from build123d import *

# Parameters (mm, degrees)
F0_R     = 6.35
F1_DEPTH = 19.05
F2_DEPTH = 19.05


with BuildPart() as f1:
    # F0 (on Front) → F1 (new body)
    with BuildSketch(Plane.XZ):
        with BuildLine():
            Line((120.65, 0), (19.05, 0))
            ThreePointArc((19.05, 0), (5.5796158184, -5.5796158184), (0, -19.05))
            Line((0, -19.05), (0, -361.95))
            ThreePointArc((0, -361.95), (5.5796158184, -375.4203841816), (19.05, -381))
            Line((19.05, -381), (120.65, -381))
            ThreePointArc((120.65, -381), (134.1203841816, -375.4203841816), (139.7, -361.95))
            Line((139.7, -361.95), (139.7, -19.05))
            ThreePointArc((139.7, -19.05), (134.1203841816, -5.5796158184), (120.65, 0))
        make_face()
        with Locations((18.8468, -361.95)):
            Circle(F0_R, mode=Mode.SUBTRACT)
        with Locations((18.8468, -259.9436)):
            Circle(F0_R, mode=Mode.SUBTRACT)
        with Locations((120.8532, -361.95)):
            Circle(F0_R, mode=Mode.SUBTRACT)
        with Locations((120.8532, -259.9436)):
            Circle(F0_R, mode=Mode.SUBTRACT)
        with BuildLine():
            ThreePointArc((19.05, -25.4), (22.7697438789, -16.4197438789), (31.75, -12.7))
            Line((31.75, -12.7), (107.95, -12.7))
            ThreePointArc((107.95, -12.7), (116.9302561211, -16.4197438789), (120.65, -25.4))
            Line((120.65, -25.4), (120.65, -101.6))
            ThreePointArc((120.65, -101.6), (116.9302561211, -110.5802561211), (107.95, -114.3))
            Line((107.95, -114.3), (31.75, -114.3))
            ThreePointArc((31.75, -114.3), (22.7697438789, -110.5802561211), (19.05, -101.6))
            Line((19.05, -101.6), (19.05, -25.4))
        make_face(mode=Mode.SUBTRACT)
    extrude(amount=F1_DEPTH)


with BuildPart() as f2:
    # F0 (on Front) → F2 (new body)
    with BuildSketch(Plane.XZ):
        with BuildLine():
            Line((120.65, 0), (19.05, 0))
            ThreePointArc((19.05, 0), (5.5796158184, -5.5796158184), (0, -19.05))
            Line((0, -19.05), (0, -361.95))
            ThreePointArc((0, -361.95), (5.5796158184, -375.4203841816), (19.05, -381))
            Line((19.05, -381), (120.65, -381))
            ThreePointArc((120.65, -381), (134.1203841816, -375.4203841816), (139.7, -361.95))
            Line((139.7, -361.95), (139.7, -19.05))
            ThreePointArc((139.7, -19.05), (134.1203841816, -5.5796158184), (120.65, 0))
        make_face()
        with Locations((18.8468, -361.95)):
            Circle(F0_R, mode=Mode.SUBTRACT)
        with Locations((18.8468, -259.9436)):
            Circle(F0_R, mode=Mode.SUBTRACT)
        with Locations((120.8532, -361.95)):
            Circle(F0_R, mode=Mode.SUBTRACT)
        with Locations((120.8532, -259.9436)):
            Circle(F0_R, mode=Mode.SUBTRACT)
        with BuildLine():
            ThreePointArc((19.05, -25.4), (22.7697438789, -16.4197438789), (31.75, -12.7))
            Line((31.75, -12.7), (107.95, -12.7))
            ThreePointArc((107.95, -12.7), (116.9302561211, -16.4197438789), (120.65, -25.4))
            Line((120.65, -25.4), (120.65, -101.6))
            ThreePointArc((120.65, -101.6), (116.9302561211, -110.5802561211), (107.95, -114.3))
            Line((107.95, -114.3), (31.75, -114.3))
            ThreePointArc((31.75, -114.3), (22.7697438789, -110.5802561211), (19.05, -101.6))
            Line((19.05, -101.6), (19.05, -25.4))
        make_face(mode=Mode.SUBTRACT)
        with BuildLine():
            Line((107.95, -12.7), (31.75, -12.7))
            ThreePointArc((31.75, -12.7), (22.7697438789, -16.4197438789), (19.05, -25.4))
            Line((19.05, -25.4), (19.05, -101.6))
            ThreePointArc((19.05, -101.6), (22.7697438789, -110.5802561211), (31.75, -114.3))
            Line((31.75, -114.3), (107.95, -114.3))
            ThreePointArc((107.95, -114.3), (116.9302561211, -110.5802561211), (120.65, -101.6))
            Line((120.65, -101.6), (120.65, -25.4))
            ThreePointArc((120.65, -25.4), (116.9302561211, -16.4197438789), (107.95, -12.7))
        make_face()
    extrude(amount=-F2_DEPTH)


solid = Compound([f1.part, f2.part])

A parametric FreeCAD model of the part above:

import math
import FreeCAD as App
import Part
import Sketcher
Q = App.Units.Quantity

doc = App.newDocument("Part")
params = doc.addObject("Spreadsheet::Sheet", "Params")
for row, (alias, value) in enumerate([
    ("sketch1_diameter", "0.5 in"),
    ("sketch1_radius", "0.5 in"),
    ("sketch1_width", "4 in"),
    ("sketch1_radius2", "0.75 in"),
    ("sketch1_height", "13.5 in"),
    ("pad1_length", "0.75 in"),
    ("sketch2_diameter", "0.5 in"),
    ("sketch2_width", "4 in"),
    ("sketch2_radius", "0.75 in"),
    ("sketch2_height", "13.5 in"),
    ("pad2_length", "0.75 in"),
], start=1):
    params.set(f"A{row}", alias)
    params.set(f"B{row}", "=" + value)
    params.setAlias(f"B{row}", alias)

body = doc.addObject("PartDesign::Body", "Body")

# Sketch on XZ plane
sketch1 = body.newObject("Sketcher::SketchObject", "Sketch")
sketch1.AttachmentSupport = (doc.getObject("XZ_Plane"), [""])
sketch1.MapMode = "FlatFace"
sketch1.addGeometry(Part.LineSegment(App.Vector(121, 0, 0), App.Vector(19, 0, 0)), False)
sketch1.addGeometry(Part.ArcOfCircle(Part.Circle(App.Vector(19, -19, 0), App.Vector(0, 0, 1), 19), math.radians(90), math.radians(180)), False)
sketch1.addGeometry(Part.LineSegment(App.Vector(0, -19, 0), App.Vector(0, -362, 0)), False)
sketch1.addGeometry(Part.ArcOfCircle(Part.Circle(App.Vector(19, -362, 0), App.Vector(0, 0, 1), 19), math.radians(180), math.radians(270)), False)
sketch1.addGeometry(Part.LineSegment(App.Vector(19, -381, 0), App.Vector(121, -381, 0)), False)
sketch1.addGeometry(Part.ArcOfCircle(Part.Circle(App.Vector(121, -362, 0), App.Vector(0, 0, 1), 19), math.radians(-90), math.radians(0)), False)
sketch1.addGeometry(Part.LineSegment(App.Vector(140, -362, 0), App.Vector(140, -19, 0)), False)
sketch1.addGeometry(Part.ArcOfCircle(Part.Circle(App.Vector(121, -19, 0), App.Vector(0, 0, 1), 19), math.radians(0), math.radians(90)), False)
sketch1.addGeometry(Part.Circle(App.Vector(19, -362, 0), App.Vector(0, 0, 1), 6), False)
sketch1.addGeometry(Part.Circle(App.Vector(19, -260, 0), App.Vector(0, 0, 1), 6), False)
sketch1.addGeometry(Part.Circle(App.Vector(121, -362, 0), App.Vector(0, 0, 1), 6), False)
sketch1.addGeometry(Part.Circle(App.Vector(121, -260, 0), App.Vector(0, 0, 1), 6), False)
sketch1.addGeometry(Part.LineSegment(App.Vector(19, -102, 0), App.Vector(19, -25, 0)), False)
sketch1.addGeometry(Part.ArcOfCircle(Part.Circle(App.Vector(32, -25, 0), App.Vector(0, 0, 1), 13), math.radians(90), math.radians(180)), False)
sketch1.addGeometry(Part.LineSegment(App.Vector(32, -13, 0), App.Vector(108, -13, 0)), False)
sketch1.addGeometry(Part.ArcOfCircle(Part.Circle(App.Vector(108, -25, 0), App.Vector(0, 0, 1), 13), math.radians(0), math.radians(90)), False)
sketch1.addGeometry(Part.LineSegment(App.Vector(121, -25, 0), App.Vector(121, -102, 0)), False)
sketch1.addGeometry(Part.ArcOfCircle(Part.Circle(App.Vector(108, -102, 0), App.Vector(0, 0, 1), 13), math.radians(-90), math.radians(0)), False)
sketch1.addGeometry(Part.LineSegment(App.Vector(108, -114, 0), App.Vector(32, -114, 0)), False)
sketch1.addGeometry(Part.ArcOfCircle(Part.Circle(App.Vector(32, -102, 0), App.Vector(0, 0, 1), 13), math.radians(180), math.radians(270)), False)
sketch1.addConstraint(Sketcher.Constraint("Tangent", 0, 2, 1, 1))
sketch1.addConstraint(Sketcher.Constraint("Tangent", 1, 2, 2, 1))
sketch1.addConstraint(Sketcher.Constraint("Tangent", 2, 2, 3, 1))
sketch1.addConstraint(Sketcher.Constraint("Tangent", 3, 2, 4, 1))
sketch1.addConstraint(Sketcher.Constraint("Tangent", 4, 2, 5, 1))
sketch1.addConstraint(Sketcher.Constraint("Tangent", 5, 2, 6, 1))
sketch1.addConstraint(Sketcher.Constraint("Tangent", 6, 2, 7, 1))
sketch1.addConstraint(Sketcher.Constraint("Tangent", 7, 2, 0, 1))
sketch1.addConstraint(Sketcher.Constraint("Tangent", 12, 2, 13, 2))
sketch1.addConstraint(Sketcher.Constraint("Tangent", 13, 1, 14, 1))
sketch1.addConstraint(Sketcher.Constraint("Tangent", 14, 2, 15, 2))
sketch1.addConstraint(Sketcher.Constraint("Tangent", 15, 1, 16, 1))
sketch1.addConstraint(Sketcher.Constraint("Tangent", 16, 2, 17, 2))
sketch1.addConstraint(Sketcher.Constraint("Tangent", 17, 1, 18, 1))
sketch1.addConstraint(Sketcher.Constraint("Tangent", 18, 2, 19, 2))
sketch1.addConstraint(Sketcher.Constraint("Tangent", 19, 1, 12, 1))
sketch1.addConstraint(Sketcher.Constraint("Horizontal", 0))
sketch1.addConstraint(Sketcher.Constraint("Vertical", 2))
sketch1.addConstraint(Sketcher.Constraint("Horizontal", 4))
sketch1.addConstraint(Sketcher.Constraint("Vertical", 6))
sketch1.addConstraint(Sketcher.Constraint("Vertical", 12))
sketch1.addConstraint(Sketcher.Constraint("Horizontal", 14))
sketch1.addConstraint(Sketcher.Constraint("Vertical", 16))
sketch1.addConstraint(Sketcher.Constraint("Horizontal", 18))
sketch1.addConstraint(Sketcher.Constraint("Equal", 1, 3))
sketch1.addConstraint(Sketcher.Constraint("Equal", 3, 5))
sketch1.addConstraint(Sketcher.Constraint("Equal", 5, 7))
sketch1.addConstraint(Sketcher.Constraint("Equal", 8, 9))
sketch1.addConstraint(Sketcher.Constraint("Equal", 9, 10))
sketch1.addConstraint(Sketcher.Constraint("Equal", 10, 11))
sketch1.addConstraint(Sketcher.Constraint("Equal", 13, 15))
sketch1.addConstraint(Sketcher.Constraint("Equal", 15, 17))
sketch1.addConstraint(Sketcher.Constraint("Equal", 17, 19))
sketch1.addConstraint(Sketcher.Constraint("PointOnObject", 0, 2, -1))
sketch1.addConstraint(Sketcher.Constraint("PointOnObject", 1, 2, -2))
sketch1.addConstraint(Sketcher.Constraint("Horizontal", 5, 3, 8, 3))
sketch1.addConstraint(Sketcher.Constraint("Horizontal", 8, 3, 10, 3))
sketch1.addConstraint(Sketcher.Constraint("Horizontal", 9, 3, 11, 3))
sketch1.addConstraint(Sketcher.Constraint("Vertical", 8, 3, 9, 3))
sketch1.addConstraint(Sketcher.Constraint("Vertical", 10, 3, 11, 3))
sketch1.addConstraint(Sketcher.Constraint("Vertical", 3, 2, 12, 2))
sketch1.addConstraint(Sketcher.Constraint("Vertical", 7, 2, 15, 1))
sketch1.addConstraint(Sketcher.Constraint("Equal", 18, 12))
sketch1.addConstraint(Sketcher.Constraint("Diameter", 8, Q("0.5 in")))
sketch1.addConstraint(Sketcher.Constraint("Radius", 13, Q("0.5 in")))
sketch1.addConstraint(Sketcher.Constraint("DistanceX", 0, 2, 0, 1, Q("4 in")))
sketch1.addConstraint(Sketcher.Constraint("Radius", 1, Q("0.75 in")))
sketch1.addConstraint(Sketcher.Constraint("DistanceY", 2, 2, 2, 1, Q("13.5 in")))
sketch1.addConstraint(Sketcher.Constraint("DistanceY", 13, 3, -1, 1, Q("1 in")))
sketch1.addConstraint(Sketcher.Constraint("DistanceX", -1, 1, 8, 3, Q("0.742 in")))
sketch1.addConstraint(Sketcher.Constraint("DistanceY", 9, 3, -1, 1, Q("10.234 in")))
sketch1.addConstraint(Sketcher.Constraint("DistanceX", -1, 1, 10, 3, Q("4.758 in")))
sketch1.setExpression("Constraints[43]", "Params.sketch1_diameter")
sketch1.setExpression("Constraints[44]", "Params.sketch1_radius")
sketch1.setExpression("Constraints[45]", "Params.sketch1_width")
sketch1.setExpression("Constraints[46]", "Params.sketch1_radius2")
sketch1.setExpression("Constraints[47]", "Params.sketch1_height")
pad1 = body.newObject("PartDesign::Pad", "Pad")
pad1.Profile = sketch1
pad1.setExpression("Length", "Params.pad1_length")
body2 = doc.addObject("PartDesign::Body", "Body001")

# Sketch on XZ plane
sketch2 = body2.newObject("Sketcher::SketchObject", "Sketch001")
sketch2.AttachmentSupport = (doc.getObject("XZ_Plane001"), [""])
sketch2.MapMode = "FlatFace"
sketch2.addGeometry(Part.LineSegment(App.Vector(121, 0, 0), App.Vector(19, 0, 0)), False)
sketch2.addGeometry(Part.ArcOfCircle(Part.Circle(App.Vector(19, -19, 0), App.Vector(0, 0, 1), 19), math.radians(90), math.radians(180)), False)
sketch2.addGeometry(Part.LineSegment(App.Vector(0, -19, 0), App.Vector(0, -362, 0)), False)
sketch2.addGeometry(Part.ArcOfCircle(Part.Circle(App.Vector(19, -362, 0), App.Vector(0, 0, 1), 19), math.radians(180), math.radians(270)), False)
sketch2.addGeometry(Part.LineSegment(App.Vector(19, -381, 0), App.Vector(121, -381, 0)), False)
sketch2.addGeometry(Part.ArcOfCircle(Part.Circle(App.Vector(121, -362, 0), App.Vector(0, 0, 1), 19), math.radians(-90), math.radians(0)), False)
sketch2.addGeometry(Part.LineSegment(App.Vector(140, -362, 0), App.Vector(140, -19, 0)), False)
sketch2.addGeometry(Part.ArcOfCircle(Part.Circle(App.Vector(121, -19, 0), App.Vector(0, 0, 1), 19), math.radians(0), math.radians(90)), False)
sketch2.addGeometry(Part.Circle(App.Vector(19, -362, 0), App.Vector(0, 0, 1), 6), False)
sketch2.addGeometry(Part.Circle(App.Vector(19, -260, 0), App.Vector(0, 0, 1), 6), False)
sketch2.addGeometry(Part.Circle(App.Vector(121, -362, 0), App.Vector(0, 0, 1), 6), False)
sketch2.addGeometry(Part.Circle(App.Vector(121, -260, 0), App.Vector(0, 0, 1), 6), False)
sketch2.addConstraint(Sketcher.Constraint("Tangent", 0, 2, 1, 1))
sketch2.addConstraint(Sketcher.Constraint("Tangent", 1, 2, 2, 1))
sketch2.addConstraint(Sketcher.Constraint("Tangent", 2, 2, 3, 1))
sketch2.addConstraint(Sketcher.Constraint("Tangent", 3, 2, 4, 1))
sketch2.addConstraint(Sketcher.Constraint("Tangent", 4, 2, 5, 1))
sketch2.addConstraint(Sketcher.Constraint("Tangent", 5, 2, 6, 1))
sketch2.addConstraint(Sketcher.Constraint("Tangent", 6, 2, 7, 1))
sketch2.addConstraint(Sketcher.Constraint("Tangent", 7, 2, 0, 1))
sketch2.addConstraint(Sketcher.Constraint("Horizontal", 0))
sketch2.addConstraint(Sketcher.Constraint("Vertical", 2))
sketch2.addConstraint(Sketcher.Constraint("Horizontal", 4))
sketch2.addConstraint(Sketcher.Constraint("Vertical", 6))
sketch2.addConstraint(Sketcher.Constraint("Equal", 1, 3))
sketch2.addConstraint(Sketcher.Constraint("Equal", 3, 5))
sketch2.addConstraint(Sketcher.Constraint("Equal", 5, 7))
sketch2.addConstraint(Sketcher.Constraint("Equal", 8, 9))
sketch2.addConstraint(Sketcher.Constraint("Equal", 9, 10))
sketch2.addConstraint(Sketcher.Constraint("Equal", 10, 11))
sketch2.addConstraint(Sketcher.Constraint("PointOnObject", 0, 2, -1))
sketch2.addConstraint(Sketcher.Constraint("PointOnObject", 1, 2, -2))
sketch2.addConstraint(Sketcher.Constraint("Horizontal", 5, 3, 8, 3))
sketch2.addConstraint(Sketcher.Constraint("Horizontal", 8, 3, 10, 3))
sketch2.addConstraint(Sketcher.Constraint("Horizontal", 9, 3, 11, 3))
sketch2.addConstraint(Sketcher.Constraint("Vertical", 8, 3, 9, 3))
sketch2.addConstraint(Sketcher.Constraint("Vertical", 10, 3, 11, 3))
sketch2.addConstraint(Sketcher.Constraint("Diameter", 8, Q("0.5 in")))
sketch2.addConstraint(Sketcher.Constraint("DistanceX", 0, 2, 0, 1, Q("4 in")))
sketch2.addConstraint(Sketcher.Constraint("Radius", 1, Q("0.75 in")))
sketch2.addConstraint(Sketcher.Constraint("DistanceY", 2, 2, 2, 1, Q("13.5 in")))
sketch2.addConstraint(Sketcher.Constraint("DistanceX", -1, 1, 8, 3, Q("0.742 in")))
sketch2.addConstraint(Sketcher.Constraint("DistanceY", 9, 3, -1, 1, Q("10.234 in")))
sketch2.addConstraint(Sketcher.Constraint("DistanceX", -1, 1, 10, 3, Q("4.758 in")))
sketch2.setExpression("Constraints[25]", "Params.sketch2_diameter")
sketch2.setExpression("Constraints[26]", "Params.sketch2_width")
sketch2.setExpression("Constraints[27]", "Params.sketch2_radius")
sketch2.setExpression("Constraints[28]", "Params.sketch2_height")
pad2 = body2.newObject("PartDesign::Pad", "Pad001")
pad2.Profile = sketch2
pad2.setExpression("Length", "Params.pad2_length")
pad2.Reversed = True

doc.recompute()
